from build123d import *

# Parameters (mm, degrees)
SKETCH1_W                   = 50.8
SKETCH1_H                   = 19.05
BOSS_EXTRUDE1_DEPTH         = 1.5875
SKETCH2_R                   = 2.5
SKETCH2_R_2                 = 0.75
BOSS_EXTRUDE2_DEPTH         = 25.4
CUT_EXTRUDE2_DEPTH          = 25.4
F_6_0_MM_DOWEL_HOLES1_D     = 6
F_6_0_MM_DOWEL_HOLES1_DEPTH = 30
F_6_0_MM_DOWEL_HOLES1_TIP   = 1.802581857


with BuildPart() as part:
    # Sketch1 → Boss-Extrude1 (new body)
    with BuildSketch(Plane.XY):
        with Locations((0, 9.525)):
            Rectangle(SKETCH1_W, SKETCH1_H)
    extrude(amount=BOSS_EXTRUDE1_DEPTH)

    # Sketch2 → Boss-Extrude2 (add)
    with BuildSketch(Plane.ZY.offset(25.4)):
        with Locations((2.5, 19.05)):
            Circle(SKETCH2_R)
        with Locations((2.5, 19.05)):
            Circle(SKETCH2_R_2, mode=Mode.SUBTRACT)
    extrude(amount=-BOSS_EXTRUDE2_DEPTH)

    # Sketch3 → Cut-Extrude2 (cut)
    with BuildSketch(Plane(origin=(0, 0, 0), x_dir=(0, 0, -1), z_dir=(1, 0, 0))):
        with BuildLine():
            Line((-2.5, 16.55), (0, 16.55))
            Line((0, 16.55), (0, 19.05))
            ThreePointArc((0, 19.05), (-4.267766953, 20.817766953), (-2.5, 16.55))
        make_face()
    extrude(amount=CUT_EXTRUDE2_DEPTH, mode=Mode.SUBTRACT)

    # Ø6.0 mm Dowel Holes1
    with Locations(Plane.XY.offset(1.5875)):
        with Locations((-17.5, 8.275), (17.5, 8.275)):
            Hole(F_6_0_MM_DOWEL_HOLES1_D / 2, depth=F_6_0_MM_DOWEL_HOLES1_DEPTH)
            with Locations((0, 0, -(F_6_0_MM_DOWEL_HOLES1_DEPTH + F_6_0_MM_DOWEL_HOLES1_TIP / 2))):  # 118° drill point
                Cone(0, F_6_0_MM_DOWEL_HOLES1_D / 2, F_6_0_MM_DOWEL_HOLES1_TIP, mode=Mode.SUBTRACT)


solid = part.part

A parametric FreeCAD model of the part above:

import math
import FreeCAD as App
import Part
import Sketcher
from FreeCAD import Vector
Q = App.Units.Quantity

doc = App.newDocument("Part")
body = doc.addObject("PartDesign::Body", "Body")

# Sketch on XY plane
sketch1 = body.newObject("Sketcher::SketchObject", "Sketch")
sketch1.AttachmentSupport = (doc.getObject("XY_Plane"), [""])
sketch1.MapMode = "FlatFace"
sketch1.addGeometry([
    Part.LineSegment(Vector(-25.4, 19.05, 0), Vector(-25.4, 0, 0)),
    Part.LineSegment(Vector(-25.4, 0, 0), Vector(25.4, 0, 0)),
    Part.LineSegment(Vector(25.4, 0, 0), Vector(25.4, 19.05, 0)),
    Part.LineSegment(Vector(25.4, 19.05, 0), Vector(-25.4, 19.05, 0)),
], False)
sketch1.addConstraint([
    Sketcher.Constraint("Coincident", 0, 2, 1, 1),
    Sketcher.Constraint("Coincident", 1, 2, 2, 1),
    Sketcher.Constraint("Coincident", 2, 2, 3, 1),
    Sketcher.Constraint("Coincident", 3, 2, 0, 1),
    Sketcher.Constraint("Vertical", 0),
    Sketcher.Constraint("Horizontal", 1),
    Sketcher.Constraint("Vertical", 2),
    Sketcher.Constraint("Horizontal", 3),
    Sketcher.Constraint("Symmetric", 0, 2, 1, 2, -1, 1),
    Sketcher.Constraint("DistanceX", 1, 1, 1, 2, Q("50.8 mm")),
    Sketcher.Constraint("DistanceY", 0, 2, 0, 1, Q("19.05 mm")),
])
pad1 = body.newObject("PartDesign::Pad", "Pad")
pad1.Profile = sketch1
pad1.Length = 1.5875

# Sketch on YZ plane
sketch2 = body.newObject("Sketcher::SketchObject", "Sketch001")
sketch2.AttachmentSupport = (doc.getObject("YZ_Plane"), [""])
sketch2.MapMode = "FlatFace"
sketch2.AttachmentOffset = App.Placement(Vector(0, 0, -25.4), App.Rotation())
sketch2.addGeometry([
    Part.Circle(Vector(19.05, 2.5, 0), Vector(0, 0, 1), 2.5),
    Part.Circle(Vector(19.05, 2.5, 0), Vector(0, 0, 1), 0.75),
], False)
sketch2.addConstraint([
    Sketcher.Constraint("Coincident", 1, 3, 0, 3),
    Sketcher.Constraint("Diameter", 0, Q("5 mm")),
    Sketcher.Constraint("Diameter", 1, Q("1.5 mm")),
    Sketcher.Constraint("DistanceY", -1, 1, 0, 3, Q("2.5 mm")),
    Sketcher.Constraint("DistanceX", -1, 1, 0, 3, Q("19.05 mm")),
])
pad2 = body.newObject("PartDesign::Pad", "Pad001")
pad2.Profile = sketch2
pad2.Length = 25.4

# Sketch on YZ plane
sketch3 = body.newObject("Sketcher::SketchObject", "Sketch002")
sketch3.AttachmentSupport = (doc.getObject("YZ_Plane"), [""])
sketch3.MapMode = "FlatFace"
sketch3.addGeometry([
    Part.LineSegment(Vector(16.55, 2.5, 0), Vector(16.55, 0, 0)),
    Part.LineSegment(Vector(16.55, 0, 0), Vector(19.05, 0, 0)),
    Part.ArcOfCircle(Part.Circle(Vector(19.05, 2.5, 0), Vector(0, 0, 1), 2.5), math.radians(-90), math.radians(180)),
], False)
sketch3.addConstraint([
    Sketcher.Constraint("Coincident", 0, 2, 1, 1),
    Sketcher.Constraint("Tangent", 1, 2, 2, 1),
    Sketcher.Constraint("Tangent", 2, 2, 0, 1),
    Sketcher.Constraint("Vertical", 0),
    Sketcher.Constraint("Horizontal", 1),
    Sketcher.Constraint("PointOnObject", 0, 2, -1),
    Sketcher.Constraint("Radius", 2, Q("2.5 mm")),
    Sketcher.Constraint("DistanceX", -1, 1, 2, 3, Q("19.05 mm")),
])
pocket1 = body.newObject("PartDesign::Pocket", "Pocket")
pocket1.Profile = sketch3
pocket1.Length = 25.4
pocket1.Reversed = True

# Sketch on XY plane
sketch4 = body.newObject("Sketcher::SketchObject", "Sketch003")
sketch4.AttachmentSupport = (doc.getObject("XY_Plane"), [""])
sketch4.MapMode = "FlatFace"
sketch4.AttachmentOffset = App.Placement(Vector(0, 0, 1.5875), App.Rotation())
sketch4.addGeometry([
    Part.Circle(Vector(-17.5, 8.275, 0), Vector(0, 0, 1), 3),
    Part.Circle(Vector(17.5, 8.275, 0), Vector(0, 0, 1), 3),
], False)
sketch4.addConstraint([
    Sketcher.Constraint("Equal", 0, 1),
    Sketcher.Constraint("Symmetric", 0, 3, 1, 3, -2),
    Sketcher.Constraint("Diameter", 0, Q("6 mm")),
    Sketcher.Constraint("DistanceX", 0, 3, 1, 3, Q("35 mm")),
    Sketcher.Constraint("DistanceY", -1, 1, 0, 3, Q("8.275 mm")),
])
doc.recompute()
hole = body.newObject("PartDesign::Hole", "Hole")
hole.Profile = sketch4
hole.ThreadType = "None"
hole.Diameter = 6
hole.DepthType = "Dimension"
hole.Depth = 30
hole.DrillPoint = "Angled"
hole.DrillPointAngle = 118

doc.recompute()
